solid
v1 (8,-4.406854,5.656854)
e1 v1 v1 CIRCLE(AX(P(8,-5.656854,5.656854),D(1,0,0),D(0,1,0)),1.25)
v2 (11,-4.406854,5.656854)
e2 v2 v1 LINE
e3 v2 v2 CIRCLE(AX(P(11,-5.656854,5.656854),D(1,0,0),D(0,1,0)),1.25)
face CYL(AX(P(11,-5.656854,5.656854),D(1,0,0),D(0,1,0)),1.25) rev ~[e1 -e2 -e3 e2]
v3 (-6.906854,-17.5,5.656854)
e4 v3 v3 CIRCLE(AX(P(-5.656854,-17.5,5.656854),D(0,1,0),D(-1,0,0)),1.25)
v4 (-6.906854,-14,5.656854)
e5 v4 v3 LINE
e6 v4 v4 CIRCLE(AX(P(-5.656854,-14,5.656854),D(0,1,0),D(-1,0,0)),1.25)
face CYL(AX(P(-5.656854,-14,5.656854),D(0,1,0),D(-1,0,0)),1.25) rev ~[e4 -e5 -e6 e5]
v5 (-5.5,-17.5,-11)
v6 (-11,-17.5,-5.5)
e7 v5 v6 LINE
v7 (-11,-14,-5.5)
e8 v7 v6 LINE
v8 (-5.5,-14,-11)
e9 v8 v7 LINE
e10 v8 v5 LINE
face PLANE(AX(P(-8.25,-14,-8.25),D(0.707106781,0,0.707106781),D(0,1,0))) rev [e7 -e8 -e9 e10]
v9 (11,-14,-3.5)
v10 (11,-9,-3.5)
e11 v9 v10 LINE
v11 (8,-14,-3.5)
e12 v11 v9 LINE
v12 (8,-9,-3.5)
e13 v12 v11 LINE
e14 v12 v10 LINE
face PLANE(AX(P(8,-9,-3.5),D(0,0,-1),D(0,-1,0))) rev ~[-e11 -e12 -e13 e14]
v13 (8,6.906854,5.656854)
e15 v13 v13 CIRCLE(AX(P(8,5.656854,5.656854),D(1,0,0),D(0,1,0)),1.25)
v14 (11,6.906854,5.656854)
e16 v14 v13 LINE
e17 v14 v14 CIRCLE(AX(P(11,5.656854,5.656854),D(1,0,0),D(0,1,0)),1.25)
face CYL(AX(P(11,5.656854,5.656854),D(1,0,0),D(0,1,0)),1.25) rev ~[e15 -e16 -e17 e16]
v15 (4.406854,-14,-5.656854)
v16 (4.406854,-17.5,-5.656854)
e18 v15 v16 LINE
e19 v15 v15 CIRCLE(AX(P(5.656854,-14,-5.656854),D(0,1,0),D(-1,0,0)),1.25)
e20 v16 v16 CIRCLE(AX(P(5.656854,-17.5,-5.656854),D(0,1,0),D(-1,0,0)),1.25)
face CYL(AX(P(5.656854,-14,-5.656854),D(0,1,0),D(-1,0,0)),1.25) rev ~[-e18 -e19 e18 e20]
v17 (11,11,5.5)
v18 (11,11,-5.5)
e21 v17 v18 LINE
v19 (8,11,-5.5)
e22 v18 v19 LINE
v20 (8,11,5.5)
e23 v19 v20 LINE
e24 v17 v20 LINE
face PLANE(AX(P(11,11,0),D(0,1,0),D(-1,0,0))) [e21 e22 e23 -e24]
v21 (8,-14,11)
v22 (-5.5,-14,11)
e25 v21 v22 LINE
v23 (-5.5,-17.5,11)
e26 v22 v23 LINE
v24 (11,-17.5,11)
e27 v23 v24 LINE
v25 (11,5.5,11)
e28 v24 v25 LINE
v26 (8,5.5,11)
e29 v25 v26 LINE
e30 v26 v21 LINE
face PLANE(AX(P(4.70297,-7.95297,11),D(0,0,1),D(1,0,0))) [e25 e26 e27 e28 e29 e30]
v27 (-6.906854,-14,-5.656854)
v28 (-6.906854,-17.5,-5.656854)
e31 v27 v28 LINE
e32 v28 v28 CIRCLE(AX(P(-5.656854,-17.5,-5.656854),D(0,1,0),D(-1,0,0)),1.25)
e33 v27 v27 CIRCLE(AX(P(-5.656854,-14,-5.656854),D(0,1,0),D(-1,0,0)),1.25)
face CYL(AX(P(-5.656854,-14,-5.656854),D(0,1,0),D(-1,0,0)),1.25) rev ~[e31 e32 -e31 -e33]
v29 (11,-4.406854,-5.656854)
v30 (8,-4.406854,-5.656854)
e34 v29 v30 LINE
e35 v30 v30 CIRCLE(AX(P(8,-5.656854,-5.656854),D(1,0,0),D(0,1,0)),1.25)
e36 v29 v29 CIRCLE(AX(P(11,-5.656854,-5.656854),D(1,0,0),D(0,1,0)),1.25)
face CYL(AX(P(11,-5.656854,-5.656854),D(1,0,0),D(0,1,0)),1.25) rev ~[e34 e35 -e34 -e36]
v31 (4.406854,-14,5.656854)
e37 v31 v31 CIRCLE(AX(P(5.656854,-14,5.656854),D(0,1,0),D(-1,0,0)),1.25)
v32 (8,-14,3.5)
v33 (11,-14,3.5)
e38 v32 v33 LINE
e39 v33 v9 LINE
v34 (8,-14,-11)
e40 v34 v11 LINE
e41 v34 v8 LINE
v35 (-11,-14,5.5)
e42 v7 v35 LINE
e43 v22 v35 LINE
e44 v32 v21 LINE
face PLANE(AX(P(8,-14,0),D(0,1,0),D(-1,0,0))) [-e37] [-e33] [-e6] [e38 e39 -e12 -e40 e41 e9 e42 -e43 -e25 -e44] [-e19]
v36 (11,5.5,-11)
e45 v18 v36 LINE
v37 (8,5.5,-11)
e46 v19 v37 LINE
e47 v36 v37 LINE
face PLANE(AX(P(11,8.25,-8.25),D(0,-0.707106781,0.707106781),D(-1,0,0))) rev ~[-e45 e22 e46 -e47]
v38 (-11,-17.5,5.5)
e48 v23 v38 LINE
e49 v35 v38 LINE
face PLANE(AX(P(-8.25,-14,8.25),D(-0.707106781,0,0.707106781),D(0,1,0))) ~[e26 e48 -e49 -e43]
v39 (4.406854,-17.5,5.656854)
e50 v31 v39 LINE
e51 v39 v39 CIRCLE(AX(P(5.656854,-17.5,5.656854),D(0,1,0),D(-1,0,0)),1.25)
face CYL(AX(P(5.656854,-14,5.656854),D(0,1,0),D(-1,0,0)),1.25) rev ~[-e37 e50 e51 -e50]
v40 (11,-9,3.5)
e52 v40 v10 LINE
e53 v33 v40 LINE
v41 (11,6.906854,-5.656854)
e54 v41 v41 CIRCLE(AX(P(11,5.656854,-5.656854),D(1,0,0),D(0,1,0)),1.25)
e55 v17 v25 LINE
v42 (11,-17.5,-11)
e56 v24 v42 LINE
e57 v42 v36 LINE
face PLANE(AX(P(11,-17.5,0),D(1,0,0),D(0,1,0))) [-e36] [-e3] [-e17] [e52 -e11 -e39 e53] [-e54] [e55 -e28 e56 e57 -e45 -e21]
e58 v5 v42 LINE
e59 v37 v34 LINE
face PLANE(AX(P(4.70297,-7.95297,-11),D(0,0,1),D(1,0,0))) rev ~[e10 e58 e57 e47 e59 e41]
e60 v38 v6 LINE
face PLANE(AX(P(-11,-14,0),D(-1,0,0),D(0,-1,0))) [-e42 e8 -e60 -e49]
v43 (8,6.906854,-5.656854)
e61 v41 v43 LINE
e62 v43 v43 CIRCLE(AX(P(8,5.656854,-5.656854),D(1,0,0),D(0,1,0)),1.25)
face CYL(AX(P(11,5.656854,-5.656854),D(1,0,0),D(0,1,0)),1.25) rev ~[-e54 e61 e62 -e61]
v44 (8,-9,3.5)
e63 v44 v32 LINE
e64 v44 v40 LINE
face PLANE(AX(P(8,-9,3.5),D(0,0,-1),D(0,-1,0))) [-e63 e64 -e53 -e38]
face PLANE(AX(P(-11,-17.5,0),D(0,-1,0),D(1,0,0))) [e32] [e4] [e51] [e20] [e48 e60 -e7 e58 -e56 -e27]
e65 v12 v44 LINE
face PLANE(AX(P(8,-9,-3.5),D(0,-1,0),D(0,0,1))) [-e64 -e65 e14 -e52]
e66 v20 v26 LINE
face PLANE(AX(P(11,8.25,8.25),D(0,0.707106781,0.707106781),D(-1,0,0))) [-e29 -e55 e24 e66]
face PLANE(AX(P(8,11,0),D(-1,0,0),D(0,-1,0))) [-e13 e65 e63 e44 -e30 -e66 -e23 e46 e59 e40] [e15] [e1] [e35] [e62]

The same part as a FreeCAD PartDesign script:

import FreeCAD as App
import Part
import Sketcher
from FreeCAD import Vector


def edges_at(feature, points):
    """Names of the edges that pass closest to the given points."""
    edges = feature.Shape.Edges
    near = lambda p: min(range(len(edges)), key=lambda i: edges[i].distToShape(Part.Vertex(*p))[0])
    return sorted({f"Edge{near(p) + 1}" for p in points})

doc = App.newDocument("Part")
body = doc.addObject("PartDesign::Body", "Body")

# Sketch on XY plane
sketch1 = doc.addObject("Sketcher::SketchObject", "Sketch")
body.addObject(sketch1)
sketch1.AttachmentSupport = (doc.XY_Plane, [""])
sketch1.MapMode = "FlatFace"
sketch1.addGeometry(Part.LineSegment(Vector(11, 11, 0), Vector(8, 11, 0)), False)
sketch1.addGeometry(Part.LineSegment(Vector(8, 11, 0), Vector(8, -14, 0)), False)
sketch1.addGeometry(Part.LineSegment(Vector(8, -14, 0), Vector(-11, -14, 0)), False)
sketch1.addGeometry(Part.LineSegment(Vector(-11, -14, 0), Vector(-11, -17.5, 0)), False)
sketch1.addGeometry(Part.LineSegment(Vector(-11, -17.5, 0), Vector(11, -17.5, 0)), False)
sketch1.addGeometry(Part.LineSegment(Vector(11, -17.5, 0), Vector(11, 11, 0)), False)
sketch1.addConstraint(Sketcher.Constraint("Coincident", 0, 2, 1, 1))
sketch1.addConstraint(Sketcher.Constraint("Coincident", 1, 2, 2, 1))
sketch1.addConstraint(Sketcher.Constraint("Coincident", 2, 2, 3, 1))
sketch1.addConstraint(Sketcher.Constraint("Coincident", 3, 2, 4, 1))
sketch1.addConstraint(Sketcher.Constraint("Coincident", 4, 2, 5, 1))
sketch1.addConstraint(Sketcher.Constraint("Coincident", 5, 2, 0, 1))
sketch1.addConstraint(Sketcher.Constraint("Horizontal", 0))
sketch1.addConstraint(Sketcher.Constraint("Vertical", 1))
sketch1.addConstraint(Sketcher.Constraint("Horizontal", 2))
sketch1.addConstraint(Sketcher.Constraint("Vertical", 3))
sketch1.addConstraint(Sketcher.Constraint("Horizontal", 4))
sketch1.addConstraint(Sketcher.Constraint("Vertical", 5))
sketch1.addConstraint(Sketcher.Constraint("DistanceX", 0, 2, 0, 1, 3.0))
sketch1.addConstraint(Sketcher.Constraint("DistanceX", 2, 2, 2, 1, 19.0))
sketch1.addConstraint(Sketcher.Constraint("DistanceY", 1, 2, 1, 1, 25.0))
sketch1.addConstraint(Sketcher.Constraint("DistanceY", 3, 2, 3, 1, 3.5))
sketch1.addConstraint(Sketcher.Constraint("DistanceX", -1, 1, 0, 2, 8.0))
sketch1.addConstraint(Sketcher.Constraint("DistanceY", -1, 1, 0, 2, 11.0))
pad1 = doc.addObject("PartDesign::Pad", "Pad")
body.addObject(pad1)
pad1.Profile = sketch1
pad1.Length = 22
pad1.Midplane = True

# Sketch on YZ plane
sketch2 = doc.addObject("Sketcher::SketchObject", "Sketch001")
body.addObject(sketch2)
sketch2.AttachmentSupport = (doc.YZ_Plane, [""])
sketch2.MapMode = "FlatFace"
sketch2.AttachmentOffset = App.Placement(Vector(0, 0, 11), App.Rotation())
sketch2.addGeometry(Part.Circle(Vector(5.7, -5.7, 0), Vector(0, 0, 1), 1.2), False)
sketch2.addGeometry(Part.Circle(Vector(5.7, 5.7, 0), Vector(0, 0, 1), 1.2), False)
sketch2.addGeometry(Part.Circle(Vector(-5.7, 5.7, 0), Vector(0, 0, 1), 1.2), False)
sketch2.addGeometry(Part.Circle(Vector(-5.7, -5.7, 0), Vector(0, 0, 1), 1.2), False)
sketch2.addConstraint(Sketcher.Constraint("Equal", 0, 1))
sketch2.addConstraint(Sketcher.Constraint("Equal", 1, 2))
sketch2.addConstraint(Sketcher.Constraint("Equal", 2, 3))
sketch2.addConstraint(Sketcher.Constraint("Symmetric", 0, 3, 2, 3, -1, 1))
sketch2.addConstraint(Sketcher.Constraint("Symmetric", 1, 3, 3, 3, -1, 1))
sketch2.addConstraint(Sketcher.Constraint("Symmetric", 1, 3, 2, 3, -2))
sketch2.addConstraint(Sketcher.Constraint("Diameter", 0, 2.5))
sketch2.addConstraint(Sketcher.Constraint("DistanceX", -1, 1, 0, 3, 5.656854))
sketch2.addConstraint(Sketcher.Constraint("DistanceY", 0, 3, -1, 1, 5.656854))
pocket1 = doc.addObject("PartDesign::Pocket", "Pocket")
body.addObject(pocket1)
pocket1.Profile = sketch2
pocket1.Type = "ThroughAll"

# Sketch on XZ plane
sketch3 = doc.addObject("Sketcher::SketchObject", "Sketch002")
body.addObject(sketch3)
sketch3.AttachmentSupport = (doc.XZ_Plane, [""])
sketch3.MapMode = "FlatFace"
sketch3.AttachmentOffset = App.Placement(Vector(0, 0, 14), App.Rotation())
sketch3.addGeometry(Part.Circle(Vector(-5.7, -5.7, 0), Vector(0, 0, 1), 1.2), False)
sketch3.addGeometry(Part.Circle(Vector(-5.7, 5.7, 0), Vector(0, 0, 1), 1.2), False)
sketch3.addGeometry(Part.Circle(Vector(5.7, 5.7, 0), Vector(0, 0, 1), 1.2), False)
sketch3.addGeometry(Part.Circle(Vector(5.7, -5.7, 0), Vector(0, 0, 1), 1.2), False)
sketch3.addConstraint(Sketcher.Constraint("Equal", 0, 1))
sketch3.addConstraint(Sketcher.Constraint("Equal", 1, 2))
sketch3.addConstraint(Sketcher.Constraint("Equal", 2, 3))
sketch3.addConstraint(Sketcher.Constraint("Symmetric", 0, 3, 2, 3, -1, 1))
sketch3.addConstraint(Sketcher.Constraint("Symmetric", 1, 3, 3, 3, -1, 1))
sketch3.addConstraint(Sketcher.Constraint("Symmetric", 1, 3, 2, 3, -2))
sketch3.addConstraint(Sketcher.Constraint("Diameter", 0, 2.5))
sketch3.addConstraint(Sketcher.Constraint("DistanceX", 0, 3, -1, 1, 5.656854))
sketch3.addConstraint(Sketcher.Constraint("DistanceY", 0, 3, -1, 1, 5.656854))
pocket2 = doc.addObject("PartDesign::Pocket", "Pocket001")
body.addObject(pocket2)
pocket2.Profile = sketch3
pocket2.Type = "ThroughAll"
pocket2.Reversed = True
doc.recompute()

chamfer = doc.addObject("PartDesign::Chamfer", "Chamfer")
body.addObject(chamfer)
chamfer.Base = (pocket2, edges_at(pocket2, [
    (9.5, 11, 11),
    (9.5, 11, -11),
    (-11, -15.75, -11),
    (-11, -15.75, 11),
]))
chamfer.Size = 5.5

# Sketch on YZ plane
sketch4 = doc.addObject("Sketcher::SketchObject", "Sketch003")
body.addObject(sketch4)
sketch4.AttachmentSupport = (doc.YZ_Plane, [""])
sketch4.MapMode = "FlatFace"
sketch4.AttachmentOffset = App.Placement(Vector(0, 0, 8), App.Rotation())
sketch4.addGeometry(Part.LineSegment(Vector(-9, 4, 0), Vector(-9, -4, 0)), False)
sketch4.addGeometry(Part.LineSegment(Vector(-9, -4, 0), Vector(-14, -4, 0)), False)
sketch4.addGeometry(Part.LineSegment(Vector(-14, -4, 0), Vector(-14, 4, 0)), False)
sketch4.addGeometry(Part.LineSegment(Vector(-14, 4, 0), Vector(-9, 4, 0)), False)
sketch4.addConstraint(Sketcher.Constraint("Coincident", 0, 2, 1, 1))
sketch4.addConstraint(Sketcher.Constraint("Coincident", 1, 2, 2, 1))
sketch4.addConstraint(Sketcher.Constraint("Coincident", 2, 2, 3, 1))
sketch4.addConstraint(Sketcher.Constraint("Coincident", 3, 2, 0, 1))
sketch4.addConstraint(Sketcher.Constraint("Vertical", 0))
sketch4.addConstraint(Sketcher.Constraint("Horizontal", 1))
sketch4.addConstraint(Sketcher.Constraint("Vertical", 2))
sketch4.addConstraint(Sketcher.Constraint("Horizontal", 3))
sketch4.addConstraint(Sketcher.Constraint("DistanceX", 1, 2, 1, 1, 5.0))
sketch4.addConstraint(Sketcher.Constraint("DistanceY", 0, 2, 0, 1, 7.0))
sketch4.addConstraint(Sketcher.Constraint("DistanceX", 0, 2, -1, 1, 9.0))
sketch4.addConstraint(Sketcher.Constraint("DistanceY", 0, 2, -1, 1, 3.5))
pocket3 = doc.addObject("PartDesign::Pocket", "Pocket002")
body.addObject(pocket3)
pocket3.Profile = sketch4
pocket3.Length = 25
pocket3.Reversed = True

doc.recompute()
